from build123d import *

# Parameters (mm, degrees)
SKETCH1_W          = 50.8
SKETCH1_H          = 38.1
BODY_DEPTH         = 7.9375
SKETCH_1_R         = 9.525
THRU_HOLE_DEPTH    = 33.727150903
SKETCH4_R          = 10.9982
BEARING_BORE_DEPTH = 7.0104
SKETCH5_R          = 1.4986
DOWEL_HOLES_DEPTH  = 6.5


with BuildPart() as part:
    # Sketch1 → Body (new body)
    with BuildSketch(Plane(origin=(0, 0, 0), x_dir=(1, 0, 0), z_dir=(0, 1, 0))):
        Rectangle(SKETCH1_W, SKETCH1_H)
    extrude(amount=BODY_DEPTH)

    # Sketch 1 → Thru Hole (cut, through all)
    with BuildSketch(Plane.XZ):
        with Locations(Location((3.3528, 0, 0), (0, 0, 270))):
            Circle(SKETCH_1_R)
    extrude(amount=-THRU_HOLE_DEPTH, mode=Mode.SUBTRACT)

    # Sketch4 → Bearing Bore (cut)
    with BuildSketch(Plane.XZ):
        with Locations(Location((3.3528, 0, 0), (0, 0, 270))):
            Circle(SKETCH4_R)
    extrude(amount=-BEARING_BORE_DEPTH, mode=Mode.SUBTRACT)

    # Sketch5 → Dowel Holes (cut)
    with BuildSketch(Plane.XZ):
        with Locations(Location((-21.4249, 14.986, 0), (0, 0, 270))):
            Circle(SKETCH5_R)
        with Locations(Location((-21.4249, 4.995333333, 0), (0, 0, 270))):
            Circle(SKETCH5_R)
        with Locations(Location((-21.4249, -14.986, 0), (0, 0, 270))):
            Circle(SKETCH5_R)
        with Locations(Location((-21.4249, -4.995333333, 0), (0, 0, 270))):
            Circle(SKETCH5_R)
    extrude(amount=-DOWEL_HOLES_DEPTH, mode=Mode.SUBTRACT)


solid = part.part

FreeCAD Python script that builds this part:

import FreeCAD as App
import Part
import Sketcher
Q = App.Units.Quantity

doc = App.newDocument("Part")
body = doc.addObject("PartDesign::Body", "Body")

# Sketch on XZ plane
sketch1 = body.newObject("Sketcher::SketchObject", "Sketch")
sketch1.AttachmentSupport = (doc.getObject("XZ_Plane"), [""])
sketch1.MapMode = "FlatFace"
sketch1.addGeometry(Part.LineSegment(App.Vector(-25.4, -19.05, 0), App.Vector(-25.4, 19.05, 0)), False)
sketch1.addGeometry(Part.LineSegment(App.Vector(-25.4, 19.05, 0), App.Vector(25.4, 19.05, 0)), False)
sketch1.addGeometry(Part.LineSegment(App.Vector(25.4, 19.05, 0), App.Vector(25.4, -19.05, 0)), False)
sketch1.addGeometry(Part.LineSegment(App.Vector(25.4, -19.05, 0), App.Vector(-25.4, -19.05, 0)), False)
sketch1.addConstraint(Sketcher.Constraint("Coincident", 0, 2, 1, 1))
sketch1.addConstraint(Sketcher.Constraint("Coincident", 1, 2, 2, 1))
sketch1.addConstraint(Sketcher.Constraint("Coincident", 2, 2, 3, 1))
sketch1.addConstraint(Sketcher.Constraint("Coincident", 3, 2, 0, 1))
sketch1.addConstraint(Sketcher.Constraint("Vertical", 0))
sketch1.addConstraint(Sketcher.Constraint("Horizontal", 1))
sketch1.addConstraint(Sketcher.Constraint("Vertical", 2))
sketch1.addConstraint(Sketcher.Constraint("Horizontal", 3))
sketch1.addConstraint(Sketcher.Constraint("Symmetric", 0, 2, 2, 2, -1, 1))
sketch1.addConstraint(Sketcher.Constraint("DistanceX", 1, 1, 1, 2, Q("2 in")))
sketch1.addConstraint(Sketcher.Constraint("DistanceY", 0, 1, 0, 2, Q("1.5 in")))
pad1 = body.newObject("PartDesign::Pad", "Pad")
pad1.Profile = sketch1
pad1.Length = Q("0.3125 in")
pad1.Reversed = True

# Sketch on XZ plane
sketch2 = body.newObject("Sketcher::SketchObject", "Sketch001")
sketch2.AttachmentSupport = (doc.getObject("XZ_Plane"), [""])
sketch2.MapMode = "FlatFace"
sketch2.addGeometry(Part.Circle(App.Vector(3.3528, 0, 0), App.Vector(0, 0, 1), 9.525), False)
sketch2.addConstraint(Sketcher.Constraint("PointOnObject", 0, 3, -1))
sketch2.addConstraint(Sketcher.Constraint("Diameter", 0, Q("0.75 in")))
sketch2.addConstraint(Sketcher.Constraint("DistanceX", -1, 1, 0, 3, Q("0.132 in")))
pocket1 = body.newObject("PartDesign::Pocket", "Pocket")
pocket1.Profile = sketch2
pocket1.Type = "ThroughAll"

# Sketch on XZ plane
sketch3 = body.newObject("Sketcher::SketchObject", "Sketch002")
sketch3.AttachmentSupport = (doc.getObject("XZ_Plane"), [""])
sketch3.MapMode = "FlatFace"
sketch3.addGeometry(Part.Circle(App.Vector(3.3528, 0, 0), App.Vector(0, 0, 1), 10.9982), False)
sketch3.addConstraint(Sketcher.Constraint("PointOnObject", 0, 3, -1))
sketch3.addConstraint(Sketcher.Constraint("Diameter", 0, Q("0.866 in")))
sketch3.addConstraint(Sketcher.Constraint("DistanceX", -1, 1, 0, 3, Q("0.132 in")))
pocket2 = body.newObject("PartDesign::Pocket", "Pocket001")
pocket2.Profile = sketch3
pocket2.Length = Q("0.276 in")

# Sketch on XZ plane
sketch4 = body.newObject("Sketcher::SketchObject", "Sketch003")
sketch4.AttachmentSupport = (doc.getObject("XZ_Plane"), [""])
sketch4.MapMode = "FlatFace"
sketch4.addGeometry(Part.Circle(App.Vector(-21.4249, 14.986, 0), App.Vector(0, 0, 1), 1.4986), False)
sketch4.addGeometry(Part.Circle(App.Vector(-21.4249, 4.995333, 0), App.Vector(0, 0, 1), 1.4986), False)
sketch4.addGeometry(Part.Circle(App.Vector(-21.4249, -14.986, 0), App.Vector(0, 0, 1), 1.4986), False)
sketch4.addGeometry(Part.Circle(App.Vector(-21.4249, -4.995333, 0), App.Vector(0, 0, 1), 1.4986), False)
sketch4.addConstraint(Sketcher.Constraint("Equal", 0, 1))
sketch4.addConstraint(Sketcher.Constraint("Equal", 1, 2))
sketch4.addConstraint(Sketcher.Constraint("Equal", 2, 3))
sketch4.addConstraint(Sketcher.Constraint("Symmetric", 0, 3, 2, 3, -1))
sketch4.addConstraint(Sketcher.Constraint("Symmetric", 1, 3, 3, 3, -1))
sketch4.addConstraint(Sketcher.Constraint("Vertical", 0, 3, 1, 3))
sketch4.addConstraint(Sketcher.Constraint("Diameter", 0, Q("0.118 in")))
sketch4.addConstraint(Sketcher.Constraint("DistanceY", -1, 1, 0, 3, Q("0.59 in")))
sketch4.addConstraint(Sketcher.Constraint("DistanceX", 0, 3, -1, 1, Q("0.8435 in")))
sketch4.addConstraint(Sketcher.Constraint("DistanceY", -1, 1, 1, 3, Q("4.995333 mm")))
pocket3 = body.newObject("PartDesign::Pocket", "Pocket002")
pocket3.Profile = sketch4
pocket3.Length = 6.5

doc.recompute()
